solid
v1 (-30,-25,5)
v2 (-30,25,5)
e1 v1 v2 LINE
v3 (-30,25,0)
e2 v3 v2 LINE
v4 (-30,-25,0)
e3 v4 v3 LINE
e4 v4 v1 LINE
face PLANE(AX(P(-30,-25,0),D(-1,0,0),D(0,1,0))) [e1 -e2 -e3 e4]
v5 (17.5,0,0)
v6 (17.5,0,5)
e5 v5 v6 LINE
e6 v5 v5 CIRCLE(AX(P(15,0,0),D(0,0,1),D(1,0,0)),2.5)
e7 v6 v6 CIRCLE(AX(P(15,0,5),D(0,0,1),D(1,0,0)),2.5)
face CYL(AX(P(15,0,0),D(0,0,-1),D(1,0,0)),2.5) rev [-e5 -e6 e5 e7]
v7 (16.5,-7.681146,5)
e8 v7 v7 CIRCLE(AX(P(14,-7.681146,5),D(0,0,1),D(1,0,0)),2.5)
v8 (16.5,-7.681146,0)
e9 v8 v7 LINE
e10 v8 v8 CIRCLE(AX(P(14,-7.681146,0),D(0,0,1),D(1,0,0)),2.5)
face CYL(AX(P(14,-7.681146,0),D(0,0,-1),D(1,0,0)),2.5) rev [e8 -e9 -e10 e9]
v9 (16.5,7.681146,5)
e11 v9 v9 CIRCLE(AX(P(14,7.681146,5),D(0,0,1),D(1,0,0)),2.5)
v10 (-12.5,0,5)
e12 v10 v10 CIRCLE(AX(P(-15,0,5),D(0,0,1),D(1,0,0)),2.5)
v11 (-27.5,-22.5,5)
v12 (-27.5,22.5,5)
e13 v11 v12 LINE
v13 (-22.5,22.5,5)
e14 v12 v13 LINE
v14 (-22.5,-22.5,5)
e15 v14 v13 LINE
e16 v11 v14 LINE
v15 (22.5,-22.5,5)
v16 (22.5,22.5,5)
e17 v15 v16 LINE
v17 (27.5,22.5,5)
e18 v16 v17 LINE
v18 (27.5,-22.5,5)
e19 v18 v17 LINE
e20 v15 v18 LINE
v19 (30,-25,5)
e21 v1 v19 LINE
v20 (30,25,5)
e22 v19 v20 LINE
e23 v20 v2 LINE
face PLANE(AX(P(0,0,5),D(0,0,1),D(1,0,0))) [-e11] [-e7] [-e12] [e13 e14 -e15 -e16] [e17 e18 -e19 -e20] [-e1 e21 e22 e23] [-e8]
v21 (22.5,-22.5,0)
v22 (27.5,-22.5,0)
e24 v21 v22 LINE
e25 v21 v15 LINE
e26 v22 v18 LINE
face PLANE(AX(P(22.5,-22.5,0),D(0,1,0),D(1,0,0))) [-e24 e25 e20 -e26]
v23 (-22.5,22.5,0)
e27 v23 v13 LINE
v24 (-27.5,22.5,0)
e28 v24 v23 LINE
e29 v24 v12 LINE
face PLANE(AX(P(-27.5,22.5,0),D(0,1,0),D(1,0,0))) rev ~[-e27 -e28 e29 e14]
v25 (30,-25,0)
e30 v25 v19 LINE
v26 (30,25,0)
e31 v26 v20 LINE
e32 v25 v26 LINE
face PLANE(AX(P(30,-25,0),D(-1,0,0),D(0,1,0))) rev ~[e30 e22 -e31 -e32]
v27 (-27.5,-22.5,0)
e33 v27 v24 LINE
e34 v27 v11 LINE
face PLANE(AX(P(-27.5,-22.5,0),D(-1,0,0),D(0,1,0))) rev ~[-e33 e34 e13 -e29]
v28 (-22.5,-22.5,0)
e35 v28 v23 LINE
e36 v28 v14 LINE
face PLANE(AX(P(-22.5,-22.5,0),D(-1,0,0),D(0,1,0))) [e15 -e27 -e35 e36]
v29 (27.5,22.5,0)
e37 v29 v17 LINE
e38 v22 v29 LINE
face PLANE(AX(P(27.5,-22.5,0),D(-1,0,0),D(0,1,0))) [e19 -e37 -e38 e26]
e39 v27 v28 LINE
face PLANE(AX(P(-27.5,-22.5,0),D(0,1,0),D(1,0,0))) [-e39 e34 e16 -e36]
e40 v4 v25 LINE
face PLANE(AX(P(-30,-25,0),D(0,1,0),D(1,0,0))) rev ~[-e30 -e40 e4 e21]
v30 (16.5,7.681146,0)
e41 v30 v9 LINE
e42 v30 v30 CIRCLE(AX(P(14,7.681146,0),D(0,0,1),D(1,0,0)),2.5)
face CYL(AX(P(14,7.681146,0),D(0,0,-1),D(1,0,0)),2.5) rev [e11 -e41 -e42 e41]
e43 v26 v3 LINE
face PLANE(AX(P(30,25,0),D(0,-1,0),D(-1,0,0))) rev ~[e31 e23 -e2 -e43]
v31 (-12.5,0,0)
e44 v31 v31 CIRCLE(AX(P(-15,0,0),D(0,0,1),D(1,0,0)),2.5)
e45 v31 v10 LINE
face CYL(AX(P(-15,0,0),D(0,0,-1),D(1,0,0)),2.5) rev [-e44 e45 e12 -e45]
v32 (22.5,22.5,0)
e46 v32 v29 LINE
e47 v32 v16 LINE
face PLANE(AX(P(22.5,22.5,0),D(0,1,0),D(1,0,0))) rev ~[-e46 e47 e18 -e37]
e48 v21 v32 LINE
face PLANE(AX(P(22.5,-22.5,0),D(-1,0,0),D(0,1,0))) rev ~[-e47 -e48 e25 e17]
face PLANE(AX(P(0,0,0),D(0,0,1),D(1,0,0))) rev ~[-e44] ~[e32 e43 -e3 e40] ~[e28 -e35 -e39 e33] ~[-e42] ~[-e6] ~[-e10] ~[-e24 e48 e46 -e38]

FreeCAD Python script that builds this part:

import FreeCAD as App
import Part
import Sketcher
Q = App.Units.Quantity


def add_polygon(sketch, points):
    """Adds a closed chain of lines whose ends are joined by coincident constraints."""
    first, n = sketch.GeometryCount, len(points)
    for a, b in zip(points, points[1:] + points[:1]):
        sketch.addGeometry(Part.LineSegment(App.Vector(*a, 0), App.Vector(*b, 0)), False)
    for i in range(n):
        sketch.addConstraint(Sketcher.Constraint("Coincident", first + i, 2, first + (i + 1) % n, 1))

doc = App.newDocument("Part")
params = doc.addObject("Spreadsheet::Sheet", "Params")
for row, (alias, value) in enumerate([
    ("sketch1_diameter", "5 mm"),
    ("sketch1_width", "60 mm"),
    ("sketch1_width2", "5 mm"),
    ("sketch1_height", "50 mm"),
    ("sketch1_height2", "45 mm"),
    ("pad1_length", "5 mm"),
], start=1):
    params.set(f"A{row}", alias)
    params.set(f"B{row}", "=" + value)
    params.setAlias(f"B{row}", alias)

body = doc.addObject("PartDesign::Body", "Body")

sketch1 = doc.addObject("Sketcher::SketchObject", "Sketch")
body.addObject(sketch1)
sketch1.AttachmentSupport = (doc.XY_Plane, [""])
sketch1.MapMode = "FlatFace"
add_polygon(sketch1, [(-30, -25), (30, -25), (30, 25), (-30, 25)])
sketch1.addGeometry(Part.Circle(App.Vector(14, -7.7, 0), App.Vector(0, 0, 1), 2.5), False)
add_polygon(sketch1, [(-22.5, -22.5), (-27.5, -22.5), (-27.5, 22.5), (-22.5, 22.5)])
sketch1.addGeometry(Part.Circle(App.Vector(-15, 0, 0), App.Vector(0, 0, 1), 2.5), False)
sketch1.addGeometry(Part.Circle(App.Vector(15, 0, 0), App.Vector(0, 0, 1), 2.5), False)
add_polygon(sketch1, [(27.5, -22.5), (22.5, -22.5), (22.5, 22.5), (27.5, 22.5)])
sketch1.addGeometry(Part.Circle(App.Vector(14, 7.7, 0), App.Vector(0, 0, 1), 2.5), False)
sketch1.addConstraint([
    Sketcher.Constraint("Horizontal", 0),
    Sketcher.Constraint("Vertical", 1),
    Sketcher.Constraint("Horizontal", 2),
    Sketcher.Constraint("Vertical", 3),
    Sketcher.Constraint("Horizontal", 5),
    Sketcher.Constraint("Vertical", 6),
    Sketcher.Constraint("Horizontal", 7),
    Sketcher.Constraint("Vertical", 8),
    Sketcher.Constraint("Horizontal", 11),
    Sketcher.Constraint("Vertical", 12),
    Sketcher.Constraint("Horizontal", 13),
    Sketcher.Constraint("Vertical", 14),
    Sketcher.Constraint("Equal", 4, 9),
    Sketcher.Constraint("Equal", 9, 10),
    Sketcher.Constraint("Equal", 10, 15),
    Sketcher.Constraint("Symmetric", 9, 3, 10, 3, -1, 1),
    Sketcher.Constraint("Symmetric", 0, 2, 2, 2, -1, 1),
    Sketcher.Constraint("Symmetric", 7, 2, 11, 2, -1, 1),
    Sketcher.Constraint("Symmetric", 5, 2, 13, 2, -1, 1),
    Sketcher.Constraint("Symmetric", 4, 3, 15, 3, -1),
    Sketcher.Constraint("PointOnObject", 9, 3, -1),
    Sketcher.Constraint("Horizontal", 8, 2, 11, 2),
    Sketcher.Constraint("Diameter", 4, Q("5 mm")),
    Sketcher.Constraint("DistanceX", 0, 1, 0, 2, Q("60 mm")),
    Sketcher.Constraint("DistanceX", 5, 2, 5, 1, Q("5 mm")),
    Sketcher.Constraint("DistanceY", 1, 1, 1, 2, Q("50 mm")),
    Sketcher.Constraint("DistanceY", 6, 1, 6, 2, Q("45 mm")),
    Sketcher.Constraint("DistanceX", -1, 1, 4, 3, Q("14 mm")),
    Sketcher.Constraint("DistanceX", 9, 3, -1, 1, Q("15 mm")),
    Sketcher.Constraint("DistanceX", 5, 2, -1, 1, Q("27.5 mm")),
    Sketcher.Constraint("DistanceY", 4, 3, -1, 1, Q("7.681146 mm")),
])
sketch1.setExpression("Constraints[34]", "Params.sketch1_diameter")
sketch1.setExpression("Constraints[35]", "Params.sketch1_width")
sketch1.setExpression("Constraints[36]", "Params.sketch1_width2")
sketch1.setExpression("Constraints[37]", "Params.sketch1_height")
sketch1.setExpression("Constraints[38]", "Params.sketch1_height2")
pad1 = doc.addObject("PartDesign::Pad", "Pad")
body.addObject(pad1)
pad1.Profile = sketch1
pad1.setExpression("Length", "Params.pad1_length")

doc.recompute()
